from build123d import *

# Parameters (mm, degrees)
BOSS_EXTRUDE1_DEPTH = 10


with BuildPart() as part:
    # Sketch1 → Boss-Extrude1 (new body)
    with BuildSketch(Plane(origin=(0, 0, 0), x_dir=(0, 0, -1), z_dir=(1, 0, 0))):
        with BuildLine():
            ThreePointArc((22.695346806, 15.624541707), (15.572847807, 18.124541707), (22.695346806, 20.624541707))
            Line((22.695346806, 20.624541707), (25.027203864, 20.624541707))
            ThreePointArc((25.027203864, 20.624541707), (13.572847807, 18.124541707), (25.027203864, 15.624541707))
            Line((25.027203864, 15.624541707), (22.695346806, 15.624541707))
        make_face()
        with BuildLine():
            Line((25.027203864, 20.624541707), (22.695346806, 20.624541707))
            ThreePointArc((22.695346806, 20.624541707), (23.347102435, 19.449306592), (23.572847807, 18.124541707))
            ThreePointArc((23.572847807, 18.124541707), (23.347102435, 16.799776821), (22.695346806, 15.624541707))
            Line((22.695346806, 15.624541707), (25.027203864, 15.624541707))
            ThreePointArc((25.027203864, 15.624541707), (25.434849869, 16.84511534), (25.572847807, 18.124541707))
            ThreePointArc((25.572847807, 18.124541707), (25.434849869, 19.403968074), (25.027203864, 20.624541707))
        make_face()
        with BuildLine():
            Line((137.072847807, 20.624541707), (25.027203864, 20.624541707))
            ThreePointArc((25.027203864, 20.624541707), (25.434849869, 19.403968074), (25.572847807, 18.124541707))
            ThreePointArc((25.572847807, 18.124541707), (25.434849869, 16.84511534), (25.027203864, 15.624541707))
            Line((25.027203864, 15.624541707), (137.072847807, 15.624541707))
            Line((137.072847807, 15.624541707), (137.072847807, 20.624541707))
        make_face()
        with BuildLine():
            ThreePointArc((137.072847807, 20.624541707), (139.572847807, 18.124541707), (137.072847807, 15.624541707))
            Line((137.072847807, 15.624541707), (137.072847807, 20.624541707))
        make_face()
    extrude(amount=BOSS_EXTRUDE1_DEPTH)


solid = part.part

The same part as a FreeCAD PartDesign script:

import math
import FreeCAD as App
import Part
import Sketcher
Q = App.Units.Quantity

doc = App.newDocument("Part")
params = doc.addObject("Spreadsheet::Sheet", "Params")
for row, (alias, value) in enumerate([
    ("sketch1_radius", "6 mm"),
    ("sketch1_radius2", "4 mm"),
    ("sketch1_radius3", "2.5 mm"),
    ("pad1_length", "10 mm"),
], start=1):
    params.set(f"A{row}", alias)
    params.set(f"B{row}", "=" + value)
    params.setAlias(f"B{row}", alias)

body = doc.addObject("PartDesign::Body", "Body")

# Sketch on YZ plane
sketch1 = body.newObject("Sketcher::SketchObject", "Sketch")
sketch1.AttachmentSupport = (doc.getObject("YZ_Plane"), [""])
sketch1.MapMode = "FlatFace"
sketch1.addGeometry([
    Part.ArcOfCircle(Part.Circle(App.Vector(18.1, -19.6, 0), App.Vector(0, 0, 1), 6), math.radians(-65), math.radians(245)),  # 0
    Part.LineSegment(App.Vector(15.6, -25, 0), App.Vector(15.6, -137.1, 0)),  # 1
    Part.ArcOfCircle(Part.Circle(App.Vector(18.1, -137.1, 0), App.Vector(0, 0, 1), 2.5), math.radians(180), math.radians(360)),  # 2
    Part.LineSegment(App.Vector(20.6, -137.1, 0), App.Vector(20.6, -25, 0)),  # 3
    Part.ArcOfCircle(Part.Circle(App.Vector(18.1, -19.6, 0), App.Vector(0, 0, 1), 4), math.radians(-51), math.radians(231)),  # 4
    Part.ArcOfCircle(Part.Circle(App.Vector(18.1, -19.6, 0), App.Vector(0, 0, 1), 4), math.radians(-90), math.radians(-51)),  # 5
    Part.ArcOfCircle(Part.Circle(App.Vector(18.1, -19.6, 0), App.Vector(0, 0, 1), 4), math.radians(-129), math.radians(-90)),  # 6
], False)
sketch1.addConstraint([
    Sketcher.Constraint("Coincident", 0, 2, 1, 1),
    Sketcher.Constraint("Tangent", 1, 2, 2, 1),
    Sketcher.Constraint("Tangent", 2, 2, 3, 1),
    Sketcher.Constraint("Coincident", 3, 2, 0, 1),
    Sketcher.Constraint("Tangent", 4, 1, 5, 2),
    Sketcher.Constraint("Tangent", 5, 1, 6, 2),
    Sketcher.Constraint("Tangent", 6, 1, 4, 2),
    Sketcher.Constraint("Vertical", 1),
    Sketcher.Constraint("Vertical", 3),
    Sketcher.Constraint("Coincident", 4, 3, 0, 3),
    Sketcher.Constraint("Horizontal", 0, 2, 3, 2),
    Sketcher.Constraint("Horizontal", 4, 1, 6, 1),
    Sketcher.Constraint("Vertical", 3, 2, 4, 1),
    Sketcher.Constraint("Vertical", 6, 3, 5, 1),
    Sketcher.Constraint("Radius", 0, Q("6 mm")),
    Sketcher.Constraint("Radius", 4, Q("4 mm")),
    Sketcher.Constraint("Radius", 2, Q("2.5 mm")),
    Sketcher.Constraint("DistanceY", 2, 3, 0, 3, Q("117.5 mm")),
    Sketcher.Constraint("DistanceX", -1, 1, 0, 3, Q("18.124542 mm")),
    Sketcher.Constraint("DistanceY", 0, 3, -1, 1, Q("19.572848 mm")),
])
sketch1.setExpression("Constraints[14]", "Params.sketch1_radius")
sketch1.setExpression("Constraints[15]", "Params.sketch1_radius2")
sketch1.setExpression("Constraints[16]", "Params.sketch1_radius3")
pad1 = body.newObject("PartDesign::Pad", "Pad")
pad1.Profile = sketch1
pad1.setExpression("Length", "Params.pad1_length")

doc.recompute()
